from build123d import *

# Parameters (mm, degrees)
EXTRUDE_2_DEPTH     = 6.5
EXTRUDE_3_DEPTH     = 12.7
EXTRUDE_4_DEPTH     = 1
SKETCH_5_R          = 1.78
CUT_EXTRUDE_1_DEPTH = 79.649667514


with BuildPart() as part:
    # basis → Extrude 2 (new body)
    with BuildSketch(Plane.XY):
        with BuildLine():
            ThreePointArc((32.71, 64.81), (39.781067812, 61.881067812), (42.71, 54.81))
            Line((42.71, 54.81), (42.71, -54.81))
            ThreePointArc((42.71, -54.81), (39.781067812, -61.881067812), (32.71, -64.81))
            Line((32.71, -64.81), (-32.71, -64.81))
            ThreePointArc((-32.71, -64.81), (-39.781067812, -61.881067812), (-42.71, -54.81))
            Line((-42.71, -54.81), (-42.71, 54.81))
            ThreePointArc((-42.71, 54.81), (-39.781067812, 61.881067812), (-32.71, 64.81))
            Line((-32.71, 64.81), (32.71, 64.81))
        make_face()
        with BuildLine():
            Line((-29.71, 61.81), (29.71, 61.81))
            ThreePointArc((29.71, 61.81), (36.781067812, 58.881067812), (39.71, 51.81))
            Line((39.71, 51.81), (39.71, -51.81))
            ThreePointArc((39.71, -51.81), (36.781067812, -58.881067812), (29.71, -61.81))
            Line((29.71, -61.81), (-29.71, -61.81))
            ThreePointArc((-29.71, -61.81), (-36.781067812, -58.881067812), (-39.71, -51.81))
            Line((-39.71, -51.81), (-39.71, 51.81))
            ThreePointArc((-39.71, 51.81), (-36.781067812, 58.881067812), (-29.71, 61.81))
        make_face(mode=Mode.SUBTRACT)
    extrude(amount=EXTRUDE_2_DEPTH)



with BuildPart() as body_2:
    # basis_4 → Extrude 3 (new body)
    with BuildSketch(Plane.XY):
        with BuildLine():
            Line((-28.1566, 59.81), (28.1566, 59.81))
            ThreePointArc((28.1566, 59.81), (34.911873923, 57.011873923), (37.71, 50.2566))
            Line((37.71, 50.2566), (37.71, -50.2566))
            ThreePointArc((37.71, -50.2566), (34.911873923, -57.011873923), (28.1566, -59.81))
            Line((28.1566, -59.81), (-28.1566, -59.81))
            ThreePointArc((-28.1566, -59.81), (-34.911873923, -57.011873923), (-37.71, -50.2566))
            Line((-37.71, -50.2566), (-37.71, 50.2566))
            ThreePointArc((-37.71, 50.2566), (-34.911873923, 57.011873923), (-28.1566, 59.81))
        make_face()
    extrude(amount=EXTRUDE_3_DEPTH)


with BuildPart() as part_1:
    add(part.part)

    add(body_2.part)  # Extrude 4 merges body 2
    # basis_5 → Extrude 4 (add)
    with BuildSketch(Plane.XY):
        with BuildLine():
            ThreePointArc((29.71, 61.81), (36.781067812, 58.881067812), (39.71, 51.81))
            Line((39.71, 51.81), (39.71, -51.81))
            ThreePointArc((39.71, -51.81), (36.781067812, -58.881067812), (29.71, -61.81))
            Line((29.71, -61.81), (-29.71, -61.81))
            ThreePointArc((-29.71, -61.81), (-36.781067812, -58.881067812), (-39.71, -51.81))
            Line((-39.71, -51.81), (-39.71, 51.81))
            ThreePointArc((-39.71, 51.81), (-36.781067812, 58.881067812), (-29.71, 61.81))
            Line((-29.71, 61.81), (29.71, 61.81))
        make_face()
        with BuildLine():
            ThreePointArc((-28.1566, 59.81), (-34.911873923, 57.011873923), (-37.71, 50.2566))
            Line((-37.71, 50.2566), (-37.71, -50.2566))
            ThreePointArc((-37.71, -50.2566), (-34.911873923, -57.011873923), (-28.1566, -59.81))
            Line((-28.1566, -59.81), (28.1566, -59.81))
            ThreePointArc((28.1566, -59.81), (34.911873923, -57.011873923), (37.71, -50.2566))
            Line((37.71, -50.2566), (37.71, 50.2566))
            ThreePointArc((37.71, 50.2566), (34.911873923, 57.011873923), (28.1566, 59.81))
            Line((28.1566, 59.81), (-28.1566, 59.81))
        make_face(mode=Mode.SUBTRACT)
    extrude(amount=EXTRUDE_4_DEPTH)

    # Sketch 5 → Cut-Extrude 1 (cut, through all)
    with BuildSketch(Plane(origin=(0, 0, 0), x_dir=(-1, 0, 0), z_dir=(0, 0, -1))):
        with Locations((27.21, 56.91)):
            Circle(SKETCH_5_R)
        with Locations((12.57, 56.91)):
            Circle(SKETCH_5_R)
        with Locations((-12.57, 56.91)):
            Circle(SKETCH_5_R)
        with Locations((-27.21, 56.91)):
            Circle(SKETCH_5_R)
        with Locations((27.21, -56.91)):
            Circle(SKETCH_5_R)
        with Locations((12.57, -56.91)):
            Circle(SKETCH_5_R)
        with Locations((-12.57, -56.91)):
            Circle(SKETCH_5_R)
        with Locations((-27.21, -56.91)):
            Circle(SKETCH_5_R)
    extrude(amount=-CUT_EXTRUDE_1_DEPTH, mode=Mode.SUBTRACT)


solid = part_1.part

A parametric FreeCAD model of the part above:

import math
import FreeCAD as App
import Part
import Sketcher

doc = App.newDocument("Part")
params = doc.addObject("Spreadsheet::Sheet", "Params")
for row, (alias, value) in enumerate([
    ("sketch1_radius", "10 mm"),
    ("sketch1_width", "65.42 mm"),
    ("sketch1_height", "109.62 mm"),
    ("pad1_length", "6.5 mm"),
    ("pad2_length", "12.7 mm"),
    ("sketch3_radius", "10 mm"),
    ("sketch3_width", "59.42 mm"),
    ("sketch3_height", "103.62 mm"),
    ("pad3_length", "1 mm"),
    ("sketch4_diameter", "3.56 mm"),
], start=1):
    params.set(f"A{row}", alias)
    params.set(f"B{row}", "=" + value)
    params.setAlias(f"B{row}", alias)

body = doc.addObject("PartDesign::Body", "Body")

# Sketch on XY plane
sketch1 = body.newObject("Sketcher::SketchObject", "Sketch")
sketch1.AttachmentSupport = (doc.getObject("XY_Plane"), [""])
sketch1.MapMode = "FlatFace"
sketch1.addGeometry(Part.ArcOfCircle(Part.Circle(App.Vector(33, 55, 0), App.Vector(0, 0, 1), 10), math.radians(0), math.radians(90)), False)
sketch1.addGeometry(Part.LineSegment(App.Vector(33, 65, 0), App.Vector(-33, 65, 0)), False)
sketch1.addGeometry(Part.ArcOfCircle(Part.Circle(App.Vector(-33, 55, 0), App.Vector(0, 0, 1), 10), math.radians(90), math.radians(180)), False)
sketch1.addGeometry(Part.LineSegment(App.Vector(-43, 55, 0), App.Vector(-43, -55, 0)), False)
sketch1.addGeometry(Part.ArcOfCircle(Part.Circle(App.Vector(-33, -55, 0), App.Vector(0, 0, 1), 10), math.radians(180), math.radians(270)), False)
sketch1.addGeometry(Part.LineSegment(App.Vector(-33, -65, 0), App.Vector(33, -65, 0)), False)
sketch1.addGeometry(Part.ArcOfCircle(Part.Circle(App.Vector(33, -55, 0), App.Vector(0, 0, 1), 10), math.radians(-90), math.radians(0)), False)
sketch1.addGeometry(Part.LineSegment(App.Vector(43, -55, 0), App.Vector(43, 55, 0)), False)
sketch1.addGeometry(Part.LineSegment(App.Vector(-30, 62, 0), App.Vector(30, 62, 0)), False)
sketch1.addGeometry(Part.ArcOfCircle(Part.Circle(App.Vector(30, 52, 0), App.Vector(0, 0, 1), 10), math.radians(0), math.radians(90)), False)
sketch1.addGeometry(Part.LineSegment(App.Vector(40, 52, 0), App.Vector(40, -52, 0)), False)
sketch1.addGeometry(Part.ArcOfCircle(Part.Circle(App.Vector(30, -52, 0), App.Vector(0, 0, 1), 10), math.radians(-90), math.radians(0)), False)
sketch1.addGeometry(Part.LineSegment(App.Vector(30, -62, 0), App.Vector(-30, -62, 0)), False)
sketch1.addGeometry(Part.ArcOfCircle(Part.Circle(App.Vector(-30, -52, 0), App.Vector(0, 0, 1), 10), math.radians(180), math.radians(270)), False)
sketch1.addGeometry(Part.LineSegment(App.Vector(-40, -52, 0), App.Vector(-40, 52, 0)), False)
sketch1.addGeometry(Part.ArcOfCircle(Part.Circle(App.Vector(-30, 52, 0), App.Vector(0, 0, 1), 10), math.radians(90), math.radians(180)), False)
sketch1.addConstraint(Sketcher.Constraint("Tangent", 0, 2, 1, 1))
sketch1.addConstraint(Sketcher.Constraint("Tangent", 1, 2, 2, 1))
sketch1.addConstraint(Sketcher.Constraint("Tangent", 2, 2, 3, 1))
sketch1.addConstraint(Sketcher.Constraint("Tangent", 3, 2, 4, 1))
sketch1.addConstraint(Sketcher.Constraint("Tangent", 4, 2, 5, 1))
sketch1.addConstraint(Sketcher.Constraint("Tangent", 5, 2, 6, 1))
sketch1.addConstraint(Sketcher.Constraint("Tangent", 6, 2, 7, 1))
sketch1.addConstraint(Sketcher.Constraint("Tangent", 7, 2, 0, 1))
sketch1.addConstraint(Sketcher.Constraint("Tangent", 8, 2, 9, 2))
sketch1.addConstraint(Sketcher.Constraint("Tangent", 9, 1, 10, 1))
sketch1.addConstraint(Sketcher.Constraint("Tangent", 10, 2, 11, 2))
sketch1.addConstraint(Sketcher.Constraint("Tangent", 11, 1, 12, 1))
sketch1.addConstraint(Sketcher.Constraint("Tangent", 12, 2, 13, 2))
sketch1.addConstraint(Sketcher.Constraint("Tangent", 13, 1, 14, 1))
sketch1.addConstraint(Sketcher.Constraint("Tangent", 14, 2, 15, 2))
sketch1.addConstraint(Sketcher.Constraint("Tangent", 15, 1, 8, 1))
sketch1.addConstraint(Sketcher.Constraint("Horizontal", 1))
sketch1.addConstraint(Sketcher.Constraint("Vertical", 3))
sketch1.addConstraint(Sketcher.Constraint("Horizontal", 5))
sketch1.addConstraint(Sketcher.Constraint("Vertical", 7))
sketch1.addConstraint(Sketcher.Constraint("Horizontal", 8))
sketch1.addConstraint(Sketcher.Constraint("Vertical", 10))
sketch1.addConstraint(Sketcher.Constraint("Horizontal", 12))
sketch1.addConstraint(Sketcher.Constraint("Vertical", 14))
sketch1.addConstraint(Sketcher.Constraint("Equal", 0, 2))
sketch1.addConstraint(Sketcher.Constraint("Equal", 2, 4))
sketch1.addConstraint(Sketcher.Constraint("Equal", 4, 6))
sketch1.addConstraint(Sketcher.Constraint("Equal", 6, 9))
sketch1.addConstraint(Sketcher.Constraint("Equal", 9, 11))
sketch1.addConstraint(Sketcher.Constraint("Equal", 11, 13))
sketch1.addConstraint(Sketcher.Constraint("Equal", 13, 15))
sketch1.addConstraint(Sketcher.Constraint("Symmetric", 0, 3, 4, 3, -1, 1))
sketch1.addConstraint(Sketcher.Constraint("Symmetric", 9, 3, 13, 3, -1, 1))
sketch1.addConstraint(Sketcher.Constraint("Radius", 0, 10.0))
sketch1.addConstraint(Sketcher.Constraint("DistanceX", 9, 3, 0, 3, 3.0))
sketch1.addConstraint(Sketcher.Constraint("DistanceY", 9, 3, 0, 3, 3.0))
sketch1.addConstraint(Sketcher.Constraint("DistanceX", 1, 2, 1, 1, 65.42))
sketch1.addConstraint(Sketcher.Constraint("DistanceY", 3, 2, 3, 1, 109.62))
sketch1.setExpression("Constraints[33]", "Params.sketch1_radius")
sketch1.setExpression("Constraints[36]", "Params.sketch1_width")
sketch1.setExpression("Constraints[37]", "Params.sketch1_height")
pad1 = body.newObject("PartDesign::Pad", "Pad")
pad1.Profile = sketch1
pad1.setExpression("Length", "Params.pad1_length")
body2 = doc.addObject("PartDesign::Body", "Body001")

# Sketch on XY plane
sketch2 = body2.newObject("Sketcher::SketchObject", "Sketch001")
sketch2.AttachmentSupport = (doc.getObject("XY_Plane001"), [""])
sketch2.MapMode = "FlatFace"
sketch2.addGeometry(Part.LineSegment(App.Vector(28, 60, 0), App.Vector(-28, 60, 0)), False)
sketch2.addGeometry(Part.ArcOfCircle(Part.Circle(App.Vector(-28, 50, 0), App.Vector(0, 0, 1), 10), math.radians(90), math.radians(180)), False)
sketch2.addGeometry(Part.LineSegment(App.Vector(-38, 50, 0), App.Vector(-38, -50, 0)), False)
sketch2.addGeometry(Part.ArcOfCircle(Part.Circle(App.Vector(-28, -50, 0), App.Vector(0, 0, 1), 10), math.radians(-180), math.radians(-90)), False)
sketch2.addGeometry(Part.LineSegment(App.Vector(-28, -60, 0), App.Vector(28, -60, 0)), False)
sketch2.addGeometry(Part.ArcOfCircle(Part.Circle(App.Vector(28, -50, 0), App.Vector(0, 0, 1), 10), math.radians(-90), math.radians(0)), False)
sketch2.addGeometry(Part.LineSegment(App.Vector(38, -50, 0), App.Vector(38, 50, 0)), False)
sketch2.addGeometry(Part.ArcOfCircle(Part.Circle(App.Vector(28, 50, 0), App.Vector(0, 0, 1), 10), math.radians(0), math.radians(90)), False)
sketch2.addConstraint(Sketcher.Constraint("Tangent", 0, 2, 1, 1))
sketch2.addConstraint(Sketcher.Constraint("Tangent", 1, 2, 2, 1))
sketch2.addConstraint(Sketcher.Constraint("Tangent", 2, 2, 3, 1))
sketch2.addConstraint(Sketcher.Constraint("Tangent", 3, 2, 4, 1))
sketch2.addConstraint(Sketcher.Constraint("Tangent", 4, 2, 5, 1))
sketch2.addConstraint(Sketcher.Constraint("Tangent", 5, 2, 6, 1))
sketch2.addConstraint(Sketcher.Constraint("Tangent", 6, 2, 7, 1))
sketch2.addConstraint(Sketcher.Constraint("Tangent", 7, 2, 0, 1))
sketch2.addConstraint(Sketcher.Constraint("Horizontal", 0))
sketch2.addConstraint(Sketcher.Constraint("Vertical", 2))
sketch2.addConstraint(Sketcher.Constraint("Horizontal", 4))
sketch2.addConstraint(Sketcher.Constraint("Vertical", 6))
sketch2.addConstraint(Sketcher.Constraint("Equal", 1, 3))
sketch2.addConstraint(Sketcher.Constraint("Equal", 3, 5))
sketch2.addConstraint(Sketcher.Constraint("Equal", 5, 7))
sketch2.addConstraint(Sketcher.Constraint("Symmetric", 1, 3, 5, 3, -1, 1))
sketch2.addConstraint(Sketcher.Constraint("Radius", 1, 9.5534))
sketch2.addConstraint(Sketcher.Constraint("DistanceY", -1, 1, 0, 2, 59.81))
sketch2.addConstraint(Sketcher.Constraint("DistanceX", 1, 2, -1, 1, 37.71))
pad2 = body2.newObject("PartDesign::Pad", "Pad001")
pad2.Profile = sketch2
pad2.setExpression("Length", "Params.pad2_length")
body.AllowCompound = True
doc.recompute()

boolean = body.newObject("PartDesign::Boolean", "Boolean")
boolean.Type = "Fuse"
boolean.addObjects([body2])

# Sketch on XY plane
sketch3 = body.newObject("Sketcher::SketchObject", "Sketch002")
sketch3.AttachmentSupport = (doc.getObject("XY_Plane"), [""])
sketch3.MapMode = "FlatFace"
sketch3.addGeometry(Part.ArcOfCircle(Part.Circle(App.Vector(30, 52, 0), App.Vector(0, 0, 1), 10), math.radians(0), math.radians(90)), False)
sketch3.addGeometry(Part.LineSegment(App.Vector(30, 62, 0), App.Vector(-30, 62, 0)), False)
sketch3.addGeometry(Part.ArcOfCircle(Part.Circle(App.Vector(-30, 52, 0), App.Vector(0, 0, 1), 10), math.radians(90), math.radians(180)), False)
sketch3.addGeometry(Part.LineSegment(App.Vector(-40, 52, 0), App.Vector(-40, -52, 0)), False)
sketch3.addGeometry(Part.ArcOfCircle(Part.Circle(App.Vector(-30, -52, 0), App.Vector(0, 0, 1), 10), math.radians(180), math.radians(270)), False)
sketch3.addGeometry(Part.LineSegment(App.Vector(-30, -62, 0), App.Vector(30, -62, 0)), False)
sketch3.addGeometry(Part.ArcOfCircle(Part.Circle(App.Vector(30, -52, 0), App.Vector(0, 0, 1), 10), math.radians(-90), math.radians(0)), False)
sketch3.addGeometry(Part.LineSegment(App.Vector(40, -52, 0), App.Vector(40, 52, 0)), False)
sketch3.addGeometry(Part.LineSegment(App.Vector(-28, 60, 0), App.Vector(28, 60, 0)), False)
sketch3.addGeometry(Part.ArcOfCircle(Part.Circle(App.Vector(28, 50, 0), App.Vector(0, 0, 1), 10), math.radians(0), math.radians(90)), False)
sketch3.addGeometry(Part.LineSegment(App.Vector(38, 50, 0), App.Vector(38, -50, 0)), False)
sketch3.addGeometry(Part.ArcOfCircle(Part.Circle(App.Vector(28, -50, 0), App.Vector(0, 0, 1), 10), math.radians(-90), math.radians(0)), False)
sketch3.addGeometry(Part.LineSegment(App.Vector(28, -60, 0), App.Vector(-28, -60, 0)), False)
sketch3.addGeometry(Part.ArcOfCircle(Part.Circle(App.Vector(-28, -50, 0), App.Vector(0, 0, 1), 10), math.radians(-180), math.radians(-90)), False)
sketch3.addGeometry(Part.LineSegment(App.Vector(-38, -50, 0), App.Vector(-38, 50, 0)), False)
sketch3.addGeometry(Part.ArcOfCircle(Part.Circle(App.Vector(-28, 50, 0), App.Vector(0, 0, 1), 10), math.radians(90), math.radians(180)), False)
sketch3.addConstraint(Sketcher.Constraint("Tangent", 0, 2, 1, 1))
sketch3.addConstraint(Sketcher.Constraint("Tangent", 1, 2, 2, 1))
sketch3.addConstraint(Sketcher.Constraint("Tangent", 2, 2, 3, 1))
sketch3.addConstraint(Sketcher.Constraint("Tangent", 3, 2, 4, 1))
sketch3.addConstraint(Sketcher.Constraint("Tangent", 4, 2, 5, 1))
sketch3.addConstraint(Sketcher.Constraint("Tangent", 5, 2, 6, 1))
sketch3.addConstraint(Sketcher.Constraint("Tangent", 6, 2, 7, 1))
sketch3.addConstraint(Sketcher.Constraint("Tangent", 7, 2, 0, 1))
sketch3.addConstraint(Sketcher.Constraint("Tangent", 8, 2, 9, 2))
sketch3.addConstraint(Sketcher.Constraint("Tangent", 9, 1, 10, 1))
sketch3.addConstraint(Sketcher.Constraint("Tangent", 10, 2, 11, 2))
sketch3.addConstraint(Sketcher.Constraint("Tangent", 11, 1, 12, 1))
sketch3.addConstraint(Sketcher.Constraint("Tangent", 12, 2, 13, 2))
sketch3.addConstraint(Sketcher.Constraint("Tangent", 13, 1, 14, 1))
sketch3.addConstraint(Sketcher.Constraint("Tangent", 14, 2, 15, 2))
sketch3.addConstraint(Sketcher.Constraint("Tangent", 15, 1, 8, 1))
sketch3.addConstraint(Sketcher.Constraint("Horizontal", 1))
sketch3.addConstraint(Sketcher.Constraint("Vertical", 3))
sketch3.addConstraint(Sketcher.Constraint("Horizontal", 5))
sketch3.addConstraint(Sketcher.Constraint("Vertical", 7))
sketch3.addConstraint(Sketcher.Constraint("Horizontal", 8))
sketch3.addConstraint(Sketcher.Constraint("Vertical", 10))
sketch3.addConstraint(Sketcher.Constraint("Horizontal", 12))
sketch3.addConstraint(Sketcher.Constraint("Vertical", 14))
sketch3.addConstraint(Sketcher.Constraint("Equal", 0, 2))
sketch3.addConstraint(Sketcher.Constraint("Equal", 2, 4))
sketch3.addConstraint(Sketcher.Constraint("Equal", 4, 6))
sketch3.addConstraint(Sketcher.Constraint("Equal", 9, 11))
sketch3.addConstraint(Sketcher.Constraint("Equal", 11, 13))
sketch3.addConstraint(Sketcher.Constraint("Equal", 13, 15))
sketch3.addConstraint(Sketcher.Constraint("Symmetric", 0, 3, 4, 3, -1, 1))
sketch3.addConstraint(Sketcher.Constraint("Symmetric", 9, 3, 13, 3, -1, 1))
sketch3.addConstraint(Sketcher.Constraint("Radius", 0, 10.0))
sketch3.addConstraint(Sketcher.Constraint("DistanceY", 8, 2, 0, 2, 2.0))
sketch3.addConstraint(Sketcher.Constraint("DistanceX", 9, 1, 7, 2, 2.0))
sketch3.addConstraint(Sketcher.Constraint("DistanceX", 1, 2, 1, 1, 59.42))
sketch3.addConstraint(Sketcher.Constraint("DistanceY", 3, 2, 3, 1, 103.62))
sketch3.addConstraint(Sketcher.Constraint("Radius", 9, 9.5534))
sketch3.setExpression("Constraints[32]", "Params.sketch3_radius")
sketch3.setExpression("Constraints[35]", "Params.sketch3_width")
sketch3.setExpression("Constraints[36]", "Params.sketch3_height")
pad3 = body.newObject("PartDesign::Pad", "Pad002")
pad3.Profile = sketch3
pad3.setExpression("Length", "Params.pad3_length")

# Sketch on XY plane
sketch4 = body.newObject("Sketcher::SketchObject", "Sketch003")
sketch4.AttachmentSupport = (doc.getObject("XY_Plane"), [""])
sketch4.MapMode = "FlatFace"
sketch4.addGeometry(Part.Circle(App.Vector(-27.2, 56.9, 0), App.Vector(0, 0, 1), 1.8), False)
sketch4.addGeometry(Part.Circle(App.Vector(-12.6, 56.9, 0), App.Vector(0, 0, 1), 1.8), False)
sketch4.addGeometry(Part.Circle(App.Vector(12.6, 56.9, 0), App.Vector(0, 0, 1), 1.8), False)
sketch4.addGeometry(Part.Circle(App.Vector(27.2, 56.9, 0), App.Vector(0, 0, 1), 1.8), False)
sketch4.addGeometry(Part.Circle(App.Vector(-27.2, -56.9, 0), App.Vector(0, 0, 1), 1.8), False)
sketch4.addGeometry(Part.Circle(App.Vector(-12.6, -56.9, 0), App.Vector(0, 0, 1), 1.8), False)
sketch4.addGeometry(Part.Circle(App.Vector(12.6, -56.9, 0), App.Vector(0, 0, 1), 1.8), False)
sketch4.addGeometry(Part.Circle(App.Vector(27.2, -56.9, 0), App.Vector(0, 0, 1), 1.8), False)
sketch4.addConstraint(Sketcher.Constraint("Equal", 0, 1))
sketch4.addConstraint(Sketcher.Constraint("Equal", 1, 2))
sketch4.addConstraint(Sketcher.Constraint("Equal", 2, 3))
sketch4.addConstraint(Sketcher.Constraint("Equal", 3, 4))
sketch4.addConstraint(Sketcher.Constraint("Equal", 4, 5))
sketch4.addConstraint(Sketcher.Constraint("Equal", 5, 6))
sketch4.addConstraint(Sketcher.Constraint("Equal", 6, 7))
sketch4.addConstraint(Sketcher.Constraint("Symmetric", 3, 3, 4, 3, -1, 1))
sketch4.addConstraint(Sketcher.Constraint("Symmetric", 2, 3, 5, 3, -1, 1))
sketch4.addConstraint(Sketcher.Constraint("Symmetric", 1, 3, 6, 3, -1, 1))
sketch4.addConstraint(Sketcher.Constraint("Symmetric", 0, 3, 7, 3, -1, 1))
sketch4.addConstraint(Sketcher.Constraint("Symmetric", 1, 3, 2, 3, -2))
sketch4.addConstraint(Sketcher.Constraint("Symmetric", 0, 3, 3, 3, -2))
sketch4.addConstraint(Sketcher.Constraint("Horizontal", 0, 3, 1, 3))
sketch4.addConstraint(Sketcher.Constraint("Diameter", 0, 3.56))
sketch4.addConstraint(Sketcher.Constraint("DistanceX", 0, 3, -1, 1, 27.21))
sketch4.addConstraint(Sketcher.Constraint("DistanceY", -1, 1, 0, 3, 56.91))
sketch4.addConstraint(Sketcher.Constraint("DistanceX", 1, 3, -1, 1, 12.57))
sketch4.setExpression("Constraints[14]", "Params.sketch4_diameter")
pocket1 = body.newObject("PartDesign::Pocket", "Pocket")
pocket1.Profile = sketch4
pocket1.Type = "ThroughAll"
pocket1.Reversed = True

doc.recompute()
